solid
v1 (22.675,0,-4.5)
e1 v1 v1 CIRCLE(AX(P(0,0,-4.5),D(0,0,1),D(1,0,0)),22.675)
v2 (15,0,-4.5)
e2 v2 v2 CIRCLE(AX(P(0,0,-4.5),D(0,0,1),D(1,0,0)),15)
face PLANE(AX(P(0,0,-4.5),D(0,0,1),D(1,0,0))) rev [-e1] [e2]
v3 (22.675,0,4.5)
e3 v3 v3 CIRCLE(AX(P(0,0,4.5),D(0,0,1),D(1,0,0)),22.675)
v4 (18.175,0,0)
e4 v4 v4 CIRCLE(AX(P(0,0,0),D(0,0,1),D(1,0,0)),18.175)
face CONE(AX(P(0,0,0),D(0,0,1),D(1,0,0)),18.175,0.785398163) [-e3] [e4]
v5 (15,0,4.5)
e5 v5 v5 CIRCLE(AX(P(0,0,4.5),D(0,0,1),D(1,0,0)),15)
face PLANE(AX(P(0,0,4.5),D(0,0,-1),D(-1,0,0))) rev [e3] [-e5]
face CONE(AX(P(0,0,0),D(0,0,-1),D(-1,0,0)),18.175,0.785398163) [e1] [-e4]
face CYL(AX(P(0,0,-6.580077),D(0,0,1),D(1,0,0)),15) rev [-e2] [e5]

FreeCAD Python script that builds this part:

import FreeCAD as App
import Part
import Sketcher
from FreeCAD import Vector


def add_polygon(sketch, points):
    """Adds a closed chain of lines whose ends are joined by coincident constraints."""
    first, n = sketch.GeometryCount, len(points)
    for a, b in zip(points, points[1:] + points[:1]):
        sketch.addGeometry(Part.LineSegment(App.Vector(*a, 0), App.Vector(*b, 0)), False)
    for i in range(n):
        sketch.addConstraint(Sketcher.Constraint("Coincident", first + i, 2, first + (i + 1) % n, 1))

doc = App.newDocument("Part")
body = doc.addObject("PartDesign::Body", "Body")

sketch1 = body.newObject("Sketcher::SketchObject", "Sketch")
sketch1.AttachmentSupport = (doc.getObject("XZ_Plane"), [""])
sketch1.MapMode = "FlatFace"
add_polygon(sketch1, [(-23, 4), (-15, 4), (-15, -4), (-23, -4), (-18, 0)])
sketch1.addConstraint(Sketcher.Constraint("Horizontal", 0))
sketch1.addConstraint(Sketcher.Constraint("Vertical", 1))
sketch1.addConstraint(Sketcher.Constraint("Horizontal", 2))
sketch1.addConstraint(Sketcher.Constraint("Symmetric", 2, 2, 4, 2, -1))
sketch1.addConstraint(Sketcher.Constraint("PointOnObject", 3, 2, -1))
sketch1.addConstraint(Sketcher.Constraint("Perpendicular", 3, 4))
sketch1.addConstraint(Sketcher.Constraint("DistanceY", 1, 2, 1, 1, 9.0))
sketch1.addConstraint(Sketcher.Constraint("DistanceX", 0, 2, -1, 1, 15.0))
sketch1.addConstraint(Sketcher.Constraint("DistanceX", 0, 1, 0, 2, 7.675))
revolution = body.newObject("PartDesign::Revolution", "Revolution")
revolution.Profile = sketch1
revolution.ReferenceAxis = (sketch1, ["V_Axis"])
revolution.Angle = 360

doc.recompute()
